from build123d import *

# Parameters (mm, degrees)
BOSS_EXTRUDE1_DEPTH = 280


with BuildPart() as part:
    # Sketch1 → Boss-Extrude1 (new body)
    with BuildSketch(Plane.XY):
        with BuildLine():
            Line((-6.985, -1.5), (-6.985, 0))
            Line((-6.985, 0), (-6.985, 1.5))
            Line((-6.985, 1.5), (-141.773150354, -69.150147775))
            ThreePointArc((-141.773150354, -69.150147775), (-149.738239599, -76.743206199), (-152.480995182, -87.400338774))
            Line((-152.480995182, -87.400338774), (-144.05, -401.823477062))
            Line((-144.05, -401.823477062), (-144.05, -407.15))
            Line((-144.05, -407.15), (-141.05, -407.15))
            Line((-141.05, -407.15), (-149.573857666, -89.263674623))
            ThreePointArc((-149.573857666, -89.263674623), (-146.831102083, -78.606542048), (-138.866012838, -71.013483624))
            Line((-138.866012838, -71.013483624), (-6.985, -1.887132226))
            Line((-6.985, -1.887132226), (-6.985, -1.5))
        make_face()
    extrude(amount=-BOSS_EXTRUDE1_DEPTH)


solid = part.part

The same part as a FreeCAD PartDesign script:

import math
import FreeCAD as App
import Part
import Sketcher

V = App.Vector

doc = App.newDocument("Part")
params = doc.addObject("Spreadsheet::Sheet", "Params")
for row, (alias, value) in enumerate([
    ("sketch1_radius", "20 mm"),
    ("sketch1_width", "3 mm"),
    ("pad1_length", "280 mm"),
], start=1):
    params.set(f"A{row}", alias)
    params.set(f"B{row}", "=" + value)
    params.setAlias(f"B{row}", alias)

body = doc.addObject("PartDesign::Body", "Body")

# Sketch on XY plane
sketch1 = doc.addObject("Sketcher::SketchObject", "Sketch")
body.addObject(sketch1)
sketch1.AttachmentSupport = (doc.XY_Plane, [""])
sketch1.MapMode = "FlatFace"
sketch1.addGeometry([
    Part.LineSegment(V(-6.985, 1.5, 0), V(-141.77315, -69.150148, 0)),  # 0
    Part.ArcOfCircle(Part.Circle(V(-132.488181, -86.864248, 0), V(0, 0, 1), 20), math.radians(117.661594), math.radians(181.535971)),  # 1
    Part.LineSegment(V(-152.480995, -87.400339, 0), V(-144.05, -401.823477, 0)),  # 2
    Part.LineSegment(V(-144.05, -401.823477, 0), V(-144.05, -407.15, 0)),  # 3
    Part.LineSegment(V(-144.05, -407.15, 0), V(-141.05, -407.15, 0)),  # 4
    Part.LineSegment(V(-141.05, -407.15, 0), V(-149.573858, -89.263675, 0)),  # 5
    Part.ArcOfCircle(Part.Circle(V(-129.581044, -88.727584, 0), V(0, 0, 1), 20), math.radians(117.661594), math.radians(181.535971)),  # 6
    Part.LineSegment(V(-138.866013, -71.013484, 0), V(-6.985, -1.887132, 0)),  # 7
    Part.LineSegment(V(-6.985, -1.887132, 0), V(-6.985, 1.5, 0)),  # 8
], False)
sketch1.addConstraint([
    Sketcher.Constraint("Tangent", 0, 2, 1, 1),
    Sketcher.Constraint("Tangent", 1, 2, 2, 1),
    Sketcher.Constraint("Coincident", 2, 2, 3, 1),
    Sketcher.Constraint("Coincident", 3, 2, 4, 1),
    Sketcher.Constraint("Coincident", 4, 2, 5, 1),
    Sketcher.Constraint("Tangent", 5, 2, 6, 2),
    Sketcher.Constraint("Tangent", 6, 1, 7, 1),
    Sketcher.Constraint("Coincident", 7, 2, 8, 1),
    Sketcher.Constraint("Coincident", 8, 2, 0, 1),
    Sketcher.Constraint("Vertical", 3),
    Sketcher.Constraint("Horizontal", 4),
    Sketcher.Constraint("Vertical", 8),
    Sketcher.Constraint("Equal", 1, 6),
    Sketcher.Constraint("Parallel", 2, 5),
    Sketcher.Constraint("Parallel", 0, 7),
    Sketcher.Constraint("Radius", 1, 20.0),
    Sketcher.Constraint("DistanceX", 4, 1, 4, 2, 3.0),
    Sketcher.Constraint("DistanceY", -1, 1, 8, 2, 1.5),
    Sketcher.Constraint("DistanceX", 2, 2, -1, 1, 144.05),
    Sketcher.Constraint("DistanceY", 3, 2, -1, 1, 407.15),
    Sketcher.Constraint("DistanceX", 7, 2, -1, 1, 6.985),
    Sketcher.Constraint("DistanceY", 1, 3, 0, 2, 17.7141),
    Sketcher.Constraint("DistanceY", 3, 2, 3, 1, 5.326523),
    Sketcher.Constraint("DistanceY", 8, 1, 8, 2, 3.387132),
    Sketcher.Constraint("DistanceX", 1, 3, -1, 1, 132.488181),
])
sketch1.setExpression("Constraints[15]", "Params.sketch1_radius")
sketch1.setExpression("Constraints[16]", "Params.sketch1_width")
pad1 = doc.addObject("PartDesign::Pad", "Pad")
body.addObject(pad1)
pad1.Profile = sketch1
pad1.setExpression("Length", "Params.pad1_length")
pad1.Reversed = True

doc.recompute()
